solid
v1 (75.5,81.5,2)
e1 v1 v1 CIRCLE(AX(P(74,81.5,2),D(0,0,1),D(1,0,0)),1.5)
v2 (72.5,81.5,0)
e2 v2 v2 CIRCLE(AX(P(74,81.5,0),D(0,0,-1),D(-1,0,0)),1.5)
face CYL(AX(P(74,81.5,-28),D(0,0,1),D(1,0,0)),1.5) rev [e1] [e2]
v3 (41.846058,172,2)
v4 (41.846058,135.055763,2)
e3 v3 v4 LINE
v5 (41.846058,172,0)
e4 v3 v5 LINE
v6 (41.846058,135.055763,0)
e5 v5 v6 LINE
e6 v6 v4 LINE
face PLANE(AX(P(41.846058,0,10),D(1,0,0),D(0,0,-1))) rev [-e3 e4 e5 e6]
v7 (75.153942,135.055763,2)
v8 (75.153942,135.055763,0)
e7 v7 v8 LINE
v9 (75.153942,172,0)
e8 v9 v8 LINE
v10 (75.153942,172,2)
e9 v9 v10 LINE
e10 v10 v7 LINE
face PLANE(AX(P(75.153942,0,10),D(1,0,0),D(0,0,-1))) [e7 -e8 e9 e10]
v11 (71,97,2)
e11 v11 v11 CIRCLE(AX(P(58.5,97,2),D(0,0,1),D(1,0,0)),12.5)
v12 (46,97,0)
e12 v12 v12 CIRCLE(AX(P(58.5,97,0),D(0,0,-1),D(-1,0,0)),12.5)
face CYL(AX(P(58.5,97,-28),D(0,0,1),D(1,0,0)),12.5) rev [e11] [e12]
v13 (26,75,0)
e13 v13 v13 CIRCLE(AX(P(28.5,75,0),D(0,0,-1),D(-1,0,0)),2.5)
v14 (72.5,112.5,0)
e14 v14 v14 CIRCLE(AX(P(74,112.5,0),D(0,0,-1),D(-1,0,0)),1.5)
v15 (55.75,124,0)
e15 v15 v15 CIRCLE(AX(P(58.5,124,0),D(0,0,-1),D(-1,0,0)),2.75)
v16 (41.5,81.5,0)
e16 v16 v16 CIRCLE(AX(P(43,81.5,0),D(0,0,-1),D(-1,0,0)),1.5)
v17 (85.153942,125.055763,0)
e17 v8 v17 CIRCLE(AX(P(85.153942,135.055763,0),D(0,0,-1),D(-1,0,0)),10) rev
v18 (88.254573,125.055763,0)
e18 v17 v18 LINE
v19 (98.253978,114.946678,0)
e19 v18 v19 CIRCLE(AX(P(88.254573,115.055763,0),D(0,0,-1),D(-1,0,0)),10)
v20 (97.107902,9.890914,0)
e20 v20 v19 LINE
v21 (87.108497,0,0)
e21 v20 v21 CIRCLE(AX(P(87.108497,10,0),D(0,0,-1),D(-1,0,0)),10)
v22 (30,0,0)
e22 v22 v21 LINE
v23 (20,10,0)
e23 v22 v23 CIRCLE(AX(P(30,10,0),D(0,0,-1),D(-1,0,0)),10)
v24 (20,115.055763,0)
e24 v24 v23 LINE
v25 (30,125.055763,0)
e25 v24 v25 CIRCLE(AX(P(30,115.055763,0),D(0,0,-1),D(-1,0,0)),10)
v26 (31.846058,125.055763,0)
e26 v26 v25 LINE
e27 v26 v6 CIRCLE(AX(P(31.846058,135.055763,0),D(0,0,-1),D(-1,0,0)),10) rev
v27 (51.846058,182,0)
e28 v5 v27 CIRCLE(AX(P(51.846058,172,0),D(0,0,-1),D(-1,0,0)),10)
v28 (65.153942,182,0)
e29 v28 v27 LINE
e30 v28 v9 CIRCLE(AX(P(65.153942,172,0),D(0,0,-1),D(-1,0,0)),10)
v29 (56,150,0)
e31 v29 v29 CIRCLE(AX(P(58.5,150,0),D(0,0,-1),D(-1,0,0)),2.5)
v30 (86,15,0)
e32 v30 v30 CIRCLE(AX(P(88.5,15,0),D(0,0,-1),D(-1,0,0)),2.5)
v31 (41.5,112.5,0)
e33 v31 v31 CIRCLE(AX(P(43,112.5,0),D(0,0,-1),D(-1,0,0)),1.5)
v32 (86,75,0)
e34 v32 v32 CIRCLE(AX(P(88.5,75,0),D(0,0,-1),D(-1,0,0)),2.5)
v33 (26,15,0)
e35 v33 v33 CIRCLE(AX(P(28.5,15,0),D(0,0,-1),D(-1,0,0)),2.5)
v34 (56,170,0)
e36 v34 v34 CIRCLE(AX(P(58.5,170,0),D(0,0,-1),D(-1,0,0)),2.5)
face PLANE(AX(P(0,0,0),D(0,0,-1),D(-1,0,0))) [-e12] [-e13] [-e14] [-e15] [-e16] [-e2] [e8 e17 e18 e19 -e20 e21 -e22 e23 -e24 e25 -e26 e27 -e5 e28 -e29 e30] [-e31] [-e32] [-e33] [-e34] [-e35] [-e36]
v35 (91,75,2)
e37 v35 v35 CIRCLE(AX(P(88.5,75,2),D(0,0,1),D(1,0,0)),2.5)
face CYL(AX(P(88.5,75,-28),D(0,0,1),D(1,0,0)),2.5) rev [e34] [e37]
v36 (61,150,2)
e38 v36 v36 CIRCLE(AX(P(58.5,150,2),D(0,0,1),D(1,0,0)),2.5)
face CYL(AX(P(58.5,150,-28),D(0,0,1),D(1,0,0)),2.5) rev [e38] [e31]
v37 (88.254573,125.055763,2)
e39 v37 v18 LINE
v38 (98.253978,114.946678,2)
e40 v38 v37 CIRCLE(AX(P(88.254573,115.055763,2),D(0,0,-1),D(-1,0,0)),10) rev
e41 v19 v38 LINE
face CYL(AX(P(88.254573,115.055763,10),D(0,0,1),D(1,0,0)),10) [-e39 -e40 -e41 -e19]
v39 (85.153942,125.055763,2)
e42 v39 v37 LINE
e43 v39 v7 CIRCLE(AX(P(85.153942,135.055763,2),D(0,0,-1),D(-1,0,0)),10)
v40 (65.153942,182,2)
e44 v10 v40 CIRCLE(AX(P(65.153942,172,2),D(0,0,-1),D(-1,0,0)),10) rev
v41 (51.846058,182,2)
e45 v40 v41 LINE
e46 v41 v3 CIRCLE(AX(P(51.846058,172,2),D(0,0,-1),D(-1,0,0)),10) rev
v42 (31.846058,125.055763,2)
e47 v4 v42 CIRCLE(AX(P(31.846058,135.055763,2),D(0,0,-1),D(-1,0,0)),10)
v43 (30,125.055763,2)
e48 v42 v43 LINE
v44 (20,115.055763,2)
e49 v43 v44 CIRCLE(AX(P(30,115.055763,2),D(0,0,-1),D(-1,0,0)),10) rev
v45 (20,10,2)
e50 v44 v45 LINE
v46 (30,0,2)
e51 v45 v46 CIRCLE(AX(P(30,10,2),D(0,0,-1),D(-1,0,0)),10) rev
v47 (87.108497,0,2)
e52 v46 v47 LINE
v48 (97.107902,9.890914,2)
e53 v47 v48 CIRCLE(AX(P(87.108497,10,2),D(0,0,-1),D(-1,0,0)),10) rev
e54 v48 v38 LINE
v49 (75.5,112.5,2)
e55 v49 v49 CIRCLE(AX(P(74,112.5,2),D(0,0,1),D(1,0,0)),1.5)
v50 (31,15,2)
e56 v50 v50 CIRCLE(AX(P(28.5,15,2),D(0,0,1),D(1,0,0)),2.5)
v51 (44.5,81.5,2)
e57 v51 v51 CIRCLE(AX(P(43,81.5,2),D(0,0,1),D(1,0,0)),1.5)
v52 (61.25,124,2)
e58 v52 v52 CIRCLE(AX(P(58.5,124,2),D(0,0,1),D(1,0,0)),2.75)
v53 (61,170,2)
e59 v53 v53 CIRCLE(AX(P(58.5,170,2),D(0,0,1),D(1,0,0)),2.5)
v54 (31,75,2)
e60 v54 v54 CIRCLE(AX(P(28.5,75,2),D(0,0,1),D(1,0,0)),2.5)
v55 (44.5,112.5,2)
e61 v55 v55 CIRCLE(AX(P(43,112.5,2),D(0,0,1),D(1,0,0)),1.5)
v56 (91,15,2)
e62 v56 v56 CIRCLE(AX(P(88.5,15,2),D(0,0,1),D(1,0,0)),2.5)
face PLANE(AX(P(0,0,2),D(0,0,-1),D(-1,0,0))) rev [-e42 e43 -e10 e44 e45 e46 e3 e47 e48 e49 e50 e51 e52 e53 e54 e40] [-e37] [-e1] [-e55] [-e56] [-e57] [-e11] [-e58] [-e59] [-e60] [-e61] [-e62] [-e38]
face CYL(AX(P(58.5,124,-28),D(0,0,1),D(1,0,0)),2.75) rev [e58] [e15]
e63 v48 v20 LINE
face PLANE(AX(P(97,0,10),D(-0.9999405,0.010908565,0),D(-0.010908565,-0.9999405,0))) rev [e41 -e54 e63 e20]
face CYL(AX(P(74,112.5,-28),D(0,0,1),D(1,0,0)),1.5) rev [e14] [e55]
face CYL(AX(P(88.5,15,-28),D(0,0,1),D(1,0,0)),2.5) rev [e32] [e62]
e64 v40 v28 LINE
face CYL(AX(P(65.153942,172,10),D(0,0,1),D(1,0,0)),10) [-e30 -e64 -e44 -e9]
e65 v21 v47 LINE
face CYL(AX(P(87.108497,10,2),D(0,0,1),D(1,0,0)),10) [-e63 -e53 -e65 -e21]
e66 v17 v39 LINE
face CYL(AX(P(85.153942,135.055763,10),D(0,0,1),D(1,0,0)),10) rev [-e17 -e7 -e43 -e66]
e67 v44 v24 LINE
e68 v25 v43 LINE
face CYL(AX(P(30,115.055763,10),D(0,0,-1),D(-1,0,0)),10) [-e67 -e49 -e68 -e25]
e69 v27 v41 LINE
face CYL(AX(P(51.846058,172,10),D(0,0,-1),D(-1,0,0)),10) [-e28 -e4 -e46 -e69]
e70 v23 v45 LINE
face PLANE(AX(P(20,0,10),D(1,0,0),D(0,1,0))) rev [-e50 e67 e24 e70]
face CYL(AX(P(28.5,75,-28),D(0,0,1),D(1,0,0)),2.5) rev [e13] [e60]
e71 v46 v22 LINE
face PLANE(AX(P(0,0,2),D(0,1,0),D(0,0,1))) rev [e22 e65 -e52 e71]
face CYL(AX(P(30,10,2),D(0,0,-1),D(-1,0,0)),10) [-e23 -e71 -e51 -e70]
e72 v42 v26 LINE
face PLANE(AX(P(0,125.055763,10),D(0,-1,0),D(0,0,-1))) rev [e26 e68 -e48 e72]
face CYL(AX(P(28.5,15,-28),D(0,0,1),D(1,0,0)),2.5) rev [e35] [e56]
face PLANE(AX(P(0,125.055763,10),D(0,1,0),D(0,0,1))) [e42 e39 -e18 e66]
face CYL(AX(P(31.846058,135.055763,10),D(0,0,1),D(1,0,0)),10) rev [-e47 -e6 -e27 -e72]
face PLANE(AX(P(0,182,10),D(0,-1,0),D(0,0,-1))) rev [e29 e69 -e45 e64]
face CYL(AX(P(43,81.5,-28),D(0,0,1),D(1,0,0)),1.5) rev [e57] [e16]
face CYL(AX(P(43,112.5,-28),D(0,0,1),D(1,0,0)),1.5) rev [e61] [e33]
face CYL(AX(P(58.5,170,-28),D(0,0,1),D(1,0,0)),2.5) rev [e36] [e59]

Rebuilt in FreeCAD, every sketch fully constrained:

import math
import FreeCAD as App
import Part
import Sketcher


def edges_at(feature, points):
    """Names of the edges that pass closest to the given points."""
    edges = feature.Shape.Edges
    near = lambda p: min(range(len(edges)), key=lambda i: edges[i].distToShape(Part.Vertex(*p))[0])
    return sorted({f"Edge{near(p) + 1}" for p in points})


def add_polygon(sketch, points):
    """Adds a closed chain of lines whose ends are joined by coincident constraints."""
    first, n = sketch.GeometryCount, len(points)
    for a, b in zip(points, points[1:] + points[:1]):
        sketch.addGeometry(Part.LineSegment(App.Vector(*a, 0), App.Vector(*b, 0)), False)
    for i in range(n):
        sketch.addConstraint(Sketcher.Constraint("Coincident", first + i, 2, first + (i + 1) % n, 1))

doc = App.newDocument("Part")
params = doc.addObject("Spreadsheet::Sheet", "Params")
for row, (alias, value) in enumerate([
    ("sketch1_width", "117 mm"),
    ("sketch1_height", "200 mm"),
    ("pad1_length", "2 mm"),
    ("sketch2_width", "40 mm"),
    ("sketch2_height", "80 mm"),
    ("pocket1_length", "2 mm"),
    ("sketch3_diameter", "5 mm"),
    ("sketch3_diameter2", "3 mm"),
    ("sketch3_diameter3", "25 mm"),
    ("sketch3_diameter4", "5.5 mm"),
    ("pocket2_length", "30 mm"),
    ("fillet_radius", "20 mm"),
    ("sketch4_radius", "20 mm"),
    ("sketch4_height", "160 mm"),
    ("pocket3_length", "10 mm"),
    ("fillet2_radius", "10 mm"),
    ("sketch5_radius", "20 mm"),
    ("sketch5_radius2", "10 mm"),
    ("sketch5_length", "30 mm"),
    ("pocket4_length", "10 mm"),
    ("fillet3_radius", "10 mm"),
    ("sketch6_radius", "10 mm"),
    ("sketch6_radius2", "19.999999 mm"),
    ("pocket5_length", "10 mm"),
    ("fillet4_radius", "10 mm"),
], start=1):
    params.set(f"A{row}", alias)
    params.set(f"B{row}", "=" + value)
    params.setAlias(f"B{row}", alias)

body = doc.addObject("PartDesign::Body", "Body")

sketch1 = body.newObject("Sketcher::SketchObject", "Sketch")
sketch1.AttachmentSupport = (doc.getObject("XY_Plane"), [""])
sketch1.MapMode = "FlatFace"
add_polygon(sketch1, [(0, 200), (0, 0), (117, 0), (117, 200)])
sketch1.addConstraint([
    Sketcher.Constraint("Vertical", 0),
    Sketcher.Constraint("Horizontal", 1),
    Sketcher.Constraint("Vertical", 2),
    Sketcher.Constraint("Horizontal", 3),
    Sketcher.Constraint("Coincident", 0, 2, -1, 1),
    Sketcher.Constraint("DistanceX", 1, 1, 1, 2, 117.0),
    Sketcher.Constraint("DistanceY", 0, 2, 0, 1, 200.0),
])
sketch1.setExpression("Constraints[9]", "Params.sketch1_width")
sketch1.setExpression("Constraints[10]", "Params.sketch1_height")
pad1 = body.newObject("PartDesign::Pad", "Pad")
pad1.Profile = sketch1
pad1.setExpression("Length", "Params.pad1_length")

sketch2 = body.newObject("Sketcher::SketchObject", "Sketch001")
sketch2.AttachmentSupport = (doc.getObject("XY_Plane"), [""])
sketch2.MapMode = "FlatFace"
sketch2.AttachmentOffset = App.Placement(App.Vector(0, 0, 2), App.Rotation())
add_polygon(sketch2, [(0, 120), (40, 200), (0, 200)])
add_polygon(sketch2, [(77, 200), (117, 120), (117, 200)])
sketch2.addConstraint([
    Sketcher.Constraint("Horizontal", 1),
    Sketcher.Constraint("Vertical", 2),
    Sketcher.Constraint("Vertical", 4),
    Sketcher.Constraint("Horizontal", 5),
    Sketcher.Constraint("PointOnObject", 1, 2, -2),
    Sketcher.Constraint("Horizontal", 2, 2, 3, 2),
    Sketcher.Constraint("Horizontal", 1, 2, 4, 2),
    Sketcher.Constraint("Equal", 1, 5),
    Sketcher.Constraint("DistanceX", 1, 2, 1, 1, 40.0),
    Sketcher.Constraint("DistanceY", 2, 2, 2, 1, 80.0),
    Sketcher.Constraint("DistanceY", -1, 1, 0, 2, 200.0),
    Sketcher.Constraint("DistanceX", -1, 1, 3, 2, 117.0),
])
sketch2.setExpression("Constraints[14]", "Params.sketch2_width")
sketch2.setExpression("Constraints[15]", "Params.sketch2_height")
pocket1 = body.newObject("PartDesign::Pocket", "Pocket")
pocket1.Profile = sketch2
pocket1.setExpression("Length", "Params.pocket1_length")

sketch3 = body.newObject("Sketcher::SketchObject", "Sketch002")
sketch3.AttachmentSupport = (doc.getObject("XY_Plane"), [""])
sketch3.MapMode = "FlatFace"
sketch3.AttachmentOffset = App.Placement(App.Vector(0, 0, 2), App.Rotation())
sketch3.addGeometry([
    Part.Circle(App.Vector(58.5, 170, 0), App.Vector(0, 0, 1), 2.5),
    Part.Circle(App.Vector(58.5, 150, 0), App.Vector(0, 0, 1), 2.5),
    Part.Circle(App.Vector(28.5, 15, 0), App.Vector(0, 0, 1), 2.5),
    Part.Circle(App.Vector(88.5, 15, 0), App.Vector(0, 0, 1), 2.5),
    Part.Circle(App.Vector(28.5, 75, 0), App.Vector(0, 0, 1), 2.5),
    Part.Circle(App.Vector(88.5, 75, 0), App.Vector(0, 0, 1), 2.5),
    Part.Circle(App.Vector(43, 112.5, 0), App.Vector(0, 0, 1), 1.5),
    Part.Circle(App.Vector(43, 81.5, 0), App.Vector(0, 0, 1), 1.5),
    Part.Circle(App.Vector(74, 81.5, 0), App.Vector(0, 0, 1), 1.5),
    Part.Circle(App.Vector(74, 112.5, 0), App.Vector(0, 0, 1), 1.5),
    Part.Circle(App.Vector(58.5, 97, 0), App.Vector(0, 0, 1), 12.5),
    Part.Circle(App.Vector(58.5, 124, 0), App.Vector(0, 0, 1), 2.8),
], False)
sketch3.addConstraint([
    Sketcher.Constraint("Equal", 0, 1),
    Sketcher.Constraint("Equal", 1, 2),
    Sketcher.Constraint("Equal", 2, 3),
    Sketcher.Constraint("Equal", 3, 4),
    Sketcher.Constraint("Equal", 4, 5),
    Sketcher.Constraint("Equal", 6, 7),
    Sketcher.Constraint("Equal", 7, 8),
    Sketcher.Constraint("Equal", 8, 9),
    Sketcher.Constraint("Horizontal", 2, 3, 3, 3),
    Sketcher.Constraint("Horizontal", 4, 3, 5, 3),
    Sketcher.Constraint("Horizontal", 7, 3, 8, 3),
    Sketcher.Constraint("Horizontal", 6, 3, 9, 3),
    Sketcher.Constraint("Vertical", 0, 3, 1, 3),
    Sketcher.Constraint("Vertical", 2, 3, 4, 3),
    Sketcher.Constraint("Vertical", 3, 3, 5, 3),
    Sketcher.Constraint("Vertical", 6, 3, 7, 3),
    Sketcher.Constraint("Vertical", 8, 3, 9, 3),
    Sketcher.Constraint("Vertical", 1, 3, 10, 3),
    Sketcher.Constraint("Vertical", 10, 3, 11, 3),
    Sketcher.Constraint("Diameter", 0, 5.0),
    Sketcher.Constraint("Diameter", 6, 3.0),
    Sketcher.Constraint("Diameter", 10, 25.0),
    Sketcher.Constraint("Diameter", 11, 5.5),
    Sketcher.Constraint("DistanceY", -1, 1, 0, 3, 170.0),
    Sketcher.Constraint("DistanceY", -1, 1, 1, 3, 150.0),
    Sketcher.Constraint("DistanceY", -1, 1, 2, 3, 15.0),
    Sketcher.Constraint("DistanceY", -1, 1, 4, 3, 75.0),
    Sketcher.Constraint("DistanceX", -1, 1, 6, 3, 43.0),
    Sketcher.Constraint("DistanceX", -1, 1, 8, 3, 74.0),
    Sketcher.Constraint("DistanceY", -1, 1, 10, 3, 97.0),
    Sketcher.Constraint("DistanceY", -1, 1, 11, 3, 124.0),
    Sketcher.Constraint("DistanceX", 2, 3, 1, 3, 30.0),
    Sketcher.Constraint("DistanceX", 2, 3, 3, 3, 60.0),
    Sketcher.Constraint("DistanceY", 7, 3, 6, 3, 31.0),
    Sketcher.Constraint("DistanceX", -1, 1, 0, 3, 58.5),
    Sketcher.Constraint("DistanceY", -1, 1, 6, 3, 112.5),
])
sketch3.setExpression("Constraints[19]", "Params.sketch3_diameter")
sketch3.setExpression("Constraints[20]", "Params.sketch3_diameter2")
sketch3.setExpression("Constraints[21]", "Params.sketch3_diameter3")
sketch3.setExpression("Constraints[22]", "Params.sketch3_diameter4")
pocket2 = body.newObject("PartDesign::Pocket", "Pocket001")
pocket2.Profile = sketch3
pocket2.setExpression("Length", "Params.pocket2_length")
doc.recompute()

fillet = body.newObject("PartDesign::Fillet", "Fillet")
fillet.Base = (pocket2, edges_at(pocket2, [
    (0, 120, 1),
    (40, 200, 1),
    (117, 120, 1),
    (77, 200, 1),
    (117, 0, 1),
    (0, 0, 1),
]))
fillet.setExpression("Radius", "Params.fillet_radius")

sketch4 = body.newObject("Sketcher::SketchObject", "Sketch003")
sketch4.AttachmentSupport = (doc.getObject("XY_Plane"), [""])
sketch4.MapMode = "FlatFace"
sketch4.addGeometry([
    Part.LineSegment(App.Vector(97, 0, 0), App.Vector(98.7, 156.6, 0)),
    Part.LineSegment(App.Vector(98.7, 156.6, 0), App.Vector(114.9, 124.2, 0)),
    Part.ArcOfCircle(Part.Circle(App.Vector(97, 115.3, 0), App.Vector(0, 0, 1), 20), math.radians(0), math.radians(27)),
    Part.LineSegment(App.Vector(117, 115.3, 0), App.Vector(117, 20, 0)),
    Part.ArcOfCircle(Part.Circle(App.Vector(97, 20, 0), App.Vector(0, 0, 1), 20), math.radians(-90), math.radians(0)),
    Part.LineSegment(App.Vector(20, 160, 0), App.Vector(20, 0, 0)),
    Part.ArcOfCircle(Part.Circle(App.Vector(20, 20, 0), App.Vector(0, 0, 1), 20), math.radians(180), math.radians(270)),
    Part.LineSegment(App.Vector(0, 20, 0), App.Vector(0, 115.3, 0)),
    Part.ArcOfCircle(Part.Circle(App.Vector(20, 115.3, 0), App.Vector(0, 0, 1), 20), math.radians(153), math.radians(180)),
    Part.LineSegment(App.Vector(2.1, 124.2, 0), App.Vector(18.3, 156.6, 0)),
    Part.LineSegment(App.Vector(18.3, 156.6, 0), App.Vector(20, 160, 0)),
], False)
sketch4.addConstraint([
    Sketcher.Constraint("Coincident", 0, 2, 1, 1),
    Sketcher.Constraint("Tangent", 1, 2, 2, 2),
    Sketcher.Constraint("Tangent", 2, 1, 3, 1),
    Sketcher.Constraint("Tangent", 3, 2, 4, 2),
    Sketcher.Constraint("Coincident", 4, 1, 0, 1),
    Sketcher.Constraint("Coincident", 5, 2, 6, 2),
    Sketcher.Constraint("Tangent", 6, 1, 7, 1),
    Sketcher.Constraint("Tangent", 7, 2, 8, 2),
    Sketcher.Constraint("Tangent", 8, 1, 9, 1),
    Sketcher.Constraint("Coincident", 9, 2, 10, 1),
    Sketcher.Constraint("Coincident", 10, 2, 5, 1),
    Sketcher.Constraint("Vertical", 3),
    Sketcher.Constraint("Vertical", 5),
    Sketcher.Constraint("Vertical", 7),
    Sketcher.Constraint("Equal", 2, 4),
    Sketcher.Constraint("Equal", 4, 6),
    Sketcher.Constraint("Equal", 6, 8),
    Sketcher.Constraint("PointOnObject", 4, 1, -1),
    Sketcher.Constraint("PointOnObject", 5, 2, -1),
    Sketcher.Constraint("PointOnObject", 6, 1, -2),
    Sketcher.Constraint("Parallel", 9, 10),
    Sketcher.Constraint("Horizontal", 2, 3, 8, 3),
    Sketcher.Constraint("Horizontal", 1, 2, 8, 1),
    Sketcher.Constraint("Horizontal", 0, 2, 9, 2),
    Sketcher.Constraint("Vertical", 2, 3, 4, 1),
    Sketcher.Constraint("Vertical", 8, 3, 5, 2),
    Sketcher.Constraint("Radius", 2, 20.0),
    Sketcher.Constraint("DistanceY", 5, 2, 5, 1, 160.0),
    Sketcher.Constraint("DistanceX", -1, 1, 2, 3, 97.0),
    Sketcher.Constraint("DistanceY", 3, 2, 3, 1, 95.27864),
    Sketcher.Constraint("Distance", 0, 156.592909),
])
sketch4.setExpression("Constraints[26]", "Params.sketch4_radius")
sketch4.setExpression("Constraints[27]", "Params.sketch4_height")
pocket3 = body.newObject("PartDesign::Pocket", "Pocket002")
pocket3.Profile = sketch4
pocket3.setExpression("Length", "Params.pocket3_length")
pocket3.Reversed = True
doc.recompute()

fillet2 = body.newObject("PartDesign::Fillet", "Fillet001")
fillet2.Base = (pocket3, edges_at(pocket3, [
    (97, 0, 1),
    (20, 0, 1),
    (98.708, 156.584, 1),
    (20, 160, 1),
]))
fillet2.setExpression("Radius", "Params.fillet2_radius")

sketch5 = body.newObject("Sketcher::SketchObject", "Sketch004")
sketch5.AttachmentSupport = (doc.getObject("XY_Plane"), [""])
sketch5.MapMode = "FlatFace"
sketch5.addGeometry([
    Part.LineSegment(App.Vector(75.2, 125.1, 0), App.Vector(75.2, 197, 0)),
    Part.ArcOfCircle(Part.Circle(App.Vector(64.6, 180, 0), App.Vector(0, 0, 1), 20), math.radians(27), math.radians(58)),
    Part.LineSegment(App.Vector(82.5, 188.9, 0), App.Vector(97.6, 158.7, 0)),
    Part.ArcOfCircle(Part.Circle(App.Vector(88.7, 154.3, 0), App.Vector(0, 0, 1), 10), math.radians(-1), math.radians(27)),
    Part.LineSegment(App.Vector(98.7, 154.2, 0), App.Vector(98.4, 125.1, 0)),
    Part.LineSegment(App.Vector(98.4, 125.1, 0), App.Vector(75.2, 125.1, 0)),
    Part.ArcOfCircle(Part.Circle(App.Vector(52.4, 180, 0), App.Vector(0, 0, 1), 20), math.radians(122), math.radians(153)),
    Part.LineSegment(App.Vector(41.8, 197, 0), App.Vector(41.8, 125.1, 0)),
    Part.LineSegment(App.Vector(41.8, 125.1, 0), App.Vector(20, 125.1, 0)),
    Part.LineSegment(App.Vector(20, 125.1, 0), App.Vector(20, 157.6, 0)),
    Part.ArcOfCircle(Part.Circle(App.Vector(30, 157.6, 0), App.Vector(0, 0, 1), 10), math.radians(153), math.radians(180)),
    Part.LineSegment(App.Vector(21.1, 162.1, 0), App.Vector(34.5, 188.9, 0)),
], False)
sketch5.addConstraint([
    Sketcher.Constraint("Coincident", 0, 2, 1, 2),
    Sketcher.Constraint("Tangent", 1, 1, 2, 1),
    Sketcher.Constraint("Tangent", 2, 2, 3, 2),
    Sketcher.Constraint("Tangent", 3, 1, 4, 1),
    Sketcher.Constraint("Coincident", 4, 2, 5, 1),
    Sketcher.Constraint("Coincident", 5, 2, 0, 1),
    Sketcher.Constraint("Coincident", 6, 1, 7, 1),
    Sketcher.Constraint("Coincident", 7, 2, 8, 1),
    Sketcher.Constraint("Coincident", 8, 2, 9, 1),
    Sketcher.Constraint("Tangent", 9, 2, 10, 2),
    Sketcher.Constraint("Tangent", 10, 1, 11, 1),
    Sketcher.Constraint("Tangent", 11, 2, 6, 2),
    Sketcher.Constraint("Vertical", 0),
    Sketcher.Constraint("Horizontal", 5),
    Sketcher.Constraint("Vertical", 7),
    Sketcher.Constraint("Horizontal", 8),
    Sketcher.Constraint("Vertical", 9),
    Sketcher.Constraint("Equal", 1, 6),
    Sketcher.Constraint("Equal", 3, 10),
    Sketcher.Constraint("Horizontal", 1, 3, 6, 3),
    Sketcher.Constraint("Horizontal", 0, 2, 6, 1),
    Sketcher.Constraint("Horizontal", 5, 2, 7, 2),
    Sketcher.Constraint("Horizontal", 1, 1, 11, 2),
    Sketcher.Constraint("Radius", 1, 20.0),
    Sketcher.Constraint("Radius", 3, 10.0),
    Sketcher.Constraint("Distance", 11, 30.0),
    Sketcher.Constraint("DistanceY", -1, 1, 1, 3, 180.0),
    Sketcher.Constraint("DistanceX", -1, 1, 10, 3, 30.0),
    Sketcher.Constraint("Distance", 2, 33.762002),
    Sketcher.Constraint("DistanceX", 1, 3, 3, 3, 24.043098),
    Sketcher.Constraint("DistanceX", 5, 2, 5, 1, 23.210318),
    Sketcher.Constraint("DistanceX", 8, 2, 8, 1, 21.846058),
    Sketcher.Constraint("DistanceY", 0, 1, 0, 2, 71.957253),
    Sketcher.Constraint("DistanceX", -1, 1, 1, 3, 64.63932),
])
sketch5.setExpression("Constraints[23]", "Params.sketch5_radius")
sketch5.setExpression("Constraints[24]", "Params.sketch5_radius2")
sketch5.setExpression("Constraints[25]", "Params.sketch5_length")
pocket4 = body.newObject("PartDesign::Pocket", "Pocket003")
pocket4.Profile = sketch5
pocket4.setExpression("Length", "Params.pocket4_length")
pocket4.Reversed = True
doc.recompute()

fillet3 = body.newObject("PartDesign::Fillet", "Fillet002")
fillet3.Base = (pocket4, edges_at(pocket4, [
    (75.154, 197.013, 1),
    (41.846, 197.013, 1),
    (75.154, 125.056, 1),
    (98.364, 125.056, 1),
    (41.846, 125.056, 1),
    (20, 125.056, 1),
]))
fillet3.setExpression("Radius", "Params.fillet3_radius")

sketch6 = body.newObject("Sketcher::SketchObject", "Sketch005")
sketch6.AttachmentSupport = (doc.getObject("XY_Plane"), [""])
sketch6.MapMode = "FlatFace"
sketch6.addGeometry([
    Part.LineSegment(App.Vector(75.2, 190, 0), App.Vector(75.2, 182, 0)),
    Part.LineSegment(App.Vector(75.2, 182, 0), App.Vector(41.8, 182, 0)),
    Part.LineSegment(App.Vector(41.8, 182, 0), App.Vector(41.8, 190, 0)),
    Part.ArcOfCircle(Part.Circle(App.Vector(51.8, 190, 0), App.Vector(0, 0, 1), 10), math.radians(93), math.radians(180)),
    Part.ArcOfCircle(Part.Circle(App.Vector(52.4, 180, 0), App.Vector(0, 0, 1), 20), math.radians(90), math.radians(92.95)),
    Part.LineSegment(App.Vector(52.4, 200, 0), App.Vector(64.6, 200, 0)),
    Part.ArcOfCircle(Part.Circle(App.Vector(64.6, 180, 0), App.Vector(0, 0, 1), 20), math.radians(87.05), math.radians(90)),
    Part.ArcOfCircle(Part.Circle(App.Vector(65.2, 190, 0), App.Vector(0, 0, 1), 10), math.radians(0), math.radians(87)),
], False)
sketch6.addConstraint([
    Sketcher.Constraint("Coincident", 0, 2, 1, 1),
    Sketcher.Constraint("Coincident", 1, 2, 2, 1),
    Sketcher.Constraint("Tangent", 2, 2, 3, 2),
    Sketcher.Constraint("Tangent", 3, 1, 4, 2),
    Sketcher.Constraint("Tangent", 4, 1, 5, 1),
    Sketcher.Constraint("Tangent", 5, 2, 6, 2),
    Sketcher.Constraint("Tangent", 6, 1, 7, 2),
    Sketcher.Constraint("Tangent", 7, 1, 0, 1),
    Sketcher.Constraint("Vertical", 0),
    Sketcher.Constraint("Horizontal", 1),
    Sketcher.Constraint("Vertical", 2),
    Sketcher.Constraint("Horizontal", 5),
    Sketcher.Constraint("Equal", 4, 6),
    Sketcher.Constraint("Equal", 3, 7),
    Sketcher.Constraint("Horizontal", 3, 3, 7, 3),
    Sketcher.Constraint("Radius", 3, 10.0),
    Sketcher.Constraint("Radius", 4, 19.999999),
    Sketcher.Constraint("DistanceY", -1, 1, 4, 3, 180.000001),
    Sketcher.Constraint("DistanceY", -1, 1, 0, 2, 182.0),
    Sketcher.Constraint("DistanceX", 5, 1, 5, 2, 12.27864),
    Sketcher.Constraint("DistanceY", 0, 2, 0, 1, 7.986749),
    Sketcher.Constraint("DistanceX", -1, 1, 4, 3, 52.36068),
])
sketch6.setExpression("Constraints[15]", "Params.sketch6_radius")
sketch6.setExpression("Constraints[16]", "Params.sketch6_radius2")
pocket5 = body.newObject("PartDesign::Pocket", "Pocket004")
pocket5.Profile = sketch6
pocket5.setExpression("Length", "Params.pocket5_length")
pocket5.Reversed = True
doc.recompute()

fillet4 = body.newObject("PartDesign::Fillet", "Fillet003")
fillet4.Base = (pocket5, edges_at(pocket5, [(41.846, 182, 1), (75.154, 182, 1)]))
fillet4.setExpression("Radius", "Params.fillet4_radius")

doc.recompute()
